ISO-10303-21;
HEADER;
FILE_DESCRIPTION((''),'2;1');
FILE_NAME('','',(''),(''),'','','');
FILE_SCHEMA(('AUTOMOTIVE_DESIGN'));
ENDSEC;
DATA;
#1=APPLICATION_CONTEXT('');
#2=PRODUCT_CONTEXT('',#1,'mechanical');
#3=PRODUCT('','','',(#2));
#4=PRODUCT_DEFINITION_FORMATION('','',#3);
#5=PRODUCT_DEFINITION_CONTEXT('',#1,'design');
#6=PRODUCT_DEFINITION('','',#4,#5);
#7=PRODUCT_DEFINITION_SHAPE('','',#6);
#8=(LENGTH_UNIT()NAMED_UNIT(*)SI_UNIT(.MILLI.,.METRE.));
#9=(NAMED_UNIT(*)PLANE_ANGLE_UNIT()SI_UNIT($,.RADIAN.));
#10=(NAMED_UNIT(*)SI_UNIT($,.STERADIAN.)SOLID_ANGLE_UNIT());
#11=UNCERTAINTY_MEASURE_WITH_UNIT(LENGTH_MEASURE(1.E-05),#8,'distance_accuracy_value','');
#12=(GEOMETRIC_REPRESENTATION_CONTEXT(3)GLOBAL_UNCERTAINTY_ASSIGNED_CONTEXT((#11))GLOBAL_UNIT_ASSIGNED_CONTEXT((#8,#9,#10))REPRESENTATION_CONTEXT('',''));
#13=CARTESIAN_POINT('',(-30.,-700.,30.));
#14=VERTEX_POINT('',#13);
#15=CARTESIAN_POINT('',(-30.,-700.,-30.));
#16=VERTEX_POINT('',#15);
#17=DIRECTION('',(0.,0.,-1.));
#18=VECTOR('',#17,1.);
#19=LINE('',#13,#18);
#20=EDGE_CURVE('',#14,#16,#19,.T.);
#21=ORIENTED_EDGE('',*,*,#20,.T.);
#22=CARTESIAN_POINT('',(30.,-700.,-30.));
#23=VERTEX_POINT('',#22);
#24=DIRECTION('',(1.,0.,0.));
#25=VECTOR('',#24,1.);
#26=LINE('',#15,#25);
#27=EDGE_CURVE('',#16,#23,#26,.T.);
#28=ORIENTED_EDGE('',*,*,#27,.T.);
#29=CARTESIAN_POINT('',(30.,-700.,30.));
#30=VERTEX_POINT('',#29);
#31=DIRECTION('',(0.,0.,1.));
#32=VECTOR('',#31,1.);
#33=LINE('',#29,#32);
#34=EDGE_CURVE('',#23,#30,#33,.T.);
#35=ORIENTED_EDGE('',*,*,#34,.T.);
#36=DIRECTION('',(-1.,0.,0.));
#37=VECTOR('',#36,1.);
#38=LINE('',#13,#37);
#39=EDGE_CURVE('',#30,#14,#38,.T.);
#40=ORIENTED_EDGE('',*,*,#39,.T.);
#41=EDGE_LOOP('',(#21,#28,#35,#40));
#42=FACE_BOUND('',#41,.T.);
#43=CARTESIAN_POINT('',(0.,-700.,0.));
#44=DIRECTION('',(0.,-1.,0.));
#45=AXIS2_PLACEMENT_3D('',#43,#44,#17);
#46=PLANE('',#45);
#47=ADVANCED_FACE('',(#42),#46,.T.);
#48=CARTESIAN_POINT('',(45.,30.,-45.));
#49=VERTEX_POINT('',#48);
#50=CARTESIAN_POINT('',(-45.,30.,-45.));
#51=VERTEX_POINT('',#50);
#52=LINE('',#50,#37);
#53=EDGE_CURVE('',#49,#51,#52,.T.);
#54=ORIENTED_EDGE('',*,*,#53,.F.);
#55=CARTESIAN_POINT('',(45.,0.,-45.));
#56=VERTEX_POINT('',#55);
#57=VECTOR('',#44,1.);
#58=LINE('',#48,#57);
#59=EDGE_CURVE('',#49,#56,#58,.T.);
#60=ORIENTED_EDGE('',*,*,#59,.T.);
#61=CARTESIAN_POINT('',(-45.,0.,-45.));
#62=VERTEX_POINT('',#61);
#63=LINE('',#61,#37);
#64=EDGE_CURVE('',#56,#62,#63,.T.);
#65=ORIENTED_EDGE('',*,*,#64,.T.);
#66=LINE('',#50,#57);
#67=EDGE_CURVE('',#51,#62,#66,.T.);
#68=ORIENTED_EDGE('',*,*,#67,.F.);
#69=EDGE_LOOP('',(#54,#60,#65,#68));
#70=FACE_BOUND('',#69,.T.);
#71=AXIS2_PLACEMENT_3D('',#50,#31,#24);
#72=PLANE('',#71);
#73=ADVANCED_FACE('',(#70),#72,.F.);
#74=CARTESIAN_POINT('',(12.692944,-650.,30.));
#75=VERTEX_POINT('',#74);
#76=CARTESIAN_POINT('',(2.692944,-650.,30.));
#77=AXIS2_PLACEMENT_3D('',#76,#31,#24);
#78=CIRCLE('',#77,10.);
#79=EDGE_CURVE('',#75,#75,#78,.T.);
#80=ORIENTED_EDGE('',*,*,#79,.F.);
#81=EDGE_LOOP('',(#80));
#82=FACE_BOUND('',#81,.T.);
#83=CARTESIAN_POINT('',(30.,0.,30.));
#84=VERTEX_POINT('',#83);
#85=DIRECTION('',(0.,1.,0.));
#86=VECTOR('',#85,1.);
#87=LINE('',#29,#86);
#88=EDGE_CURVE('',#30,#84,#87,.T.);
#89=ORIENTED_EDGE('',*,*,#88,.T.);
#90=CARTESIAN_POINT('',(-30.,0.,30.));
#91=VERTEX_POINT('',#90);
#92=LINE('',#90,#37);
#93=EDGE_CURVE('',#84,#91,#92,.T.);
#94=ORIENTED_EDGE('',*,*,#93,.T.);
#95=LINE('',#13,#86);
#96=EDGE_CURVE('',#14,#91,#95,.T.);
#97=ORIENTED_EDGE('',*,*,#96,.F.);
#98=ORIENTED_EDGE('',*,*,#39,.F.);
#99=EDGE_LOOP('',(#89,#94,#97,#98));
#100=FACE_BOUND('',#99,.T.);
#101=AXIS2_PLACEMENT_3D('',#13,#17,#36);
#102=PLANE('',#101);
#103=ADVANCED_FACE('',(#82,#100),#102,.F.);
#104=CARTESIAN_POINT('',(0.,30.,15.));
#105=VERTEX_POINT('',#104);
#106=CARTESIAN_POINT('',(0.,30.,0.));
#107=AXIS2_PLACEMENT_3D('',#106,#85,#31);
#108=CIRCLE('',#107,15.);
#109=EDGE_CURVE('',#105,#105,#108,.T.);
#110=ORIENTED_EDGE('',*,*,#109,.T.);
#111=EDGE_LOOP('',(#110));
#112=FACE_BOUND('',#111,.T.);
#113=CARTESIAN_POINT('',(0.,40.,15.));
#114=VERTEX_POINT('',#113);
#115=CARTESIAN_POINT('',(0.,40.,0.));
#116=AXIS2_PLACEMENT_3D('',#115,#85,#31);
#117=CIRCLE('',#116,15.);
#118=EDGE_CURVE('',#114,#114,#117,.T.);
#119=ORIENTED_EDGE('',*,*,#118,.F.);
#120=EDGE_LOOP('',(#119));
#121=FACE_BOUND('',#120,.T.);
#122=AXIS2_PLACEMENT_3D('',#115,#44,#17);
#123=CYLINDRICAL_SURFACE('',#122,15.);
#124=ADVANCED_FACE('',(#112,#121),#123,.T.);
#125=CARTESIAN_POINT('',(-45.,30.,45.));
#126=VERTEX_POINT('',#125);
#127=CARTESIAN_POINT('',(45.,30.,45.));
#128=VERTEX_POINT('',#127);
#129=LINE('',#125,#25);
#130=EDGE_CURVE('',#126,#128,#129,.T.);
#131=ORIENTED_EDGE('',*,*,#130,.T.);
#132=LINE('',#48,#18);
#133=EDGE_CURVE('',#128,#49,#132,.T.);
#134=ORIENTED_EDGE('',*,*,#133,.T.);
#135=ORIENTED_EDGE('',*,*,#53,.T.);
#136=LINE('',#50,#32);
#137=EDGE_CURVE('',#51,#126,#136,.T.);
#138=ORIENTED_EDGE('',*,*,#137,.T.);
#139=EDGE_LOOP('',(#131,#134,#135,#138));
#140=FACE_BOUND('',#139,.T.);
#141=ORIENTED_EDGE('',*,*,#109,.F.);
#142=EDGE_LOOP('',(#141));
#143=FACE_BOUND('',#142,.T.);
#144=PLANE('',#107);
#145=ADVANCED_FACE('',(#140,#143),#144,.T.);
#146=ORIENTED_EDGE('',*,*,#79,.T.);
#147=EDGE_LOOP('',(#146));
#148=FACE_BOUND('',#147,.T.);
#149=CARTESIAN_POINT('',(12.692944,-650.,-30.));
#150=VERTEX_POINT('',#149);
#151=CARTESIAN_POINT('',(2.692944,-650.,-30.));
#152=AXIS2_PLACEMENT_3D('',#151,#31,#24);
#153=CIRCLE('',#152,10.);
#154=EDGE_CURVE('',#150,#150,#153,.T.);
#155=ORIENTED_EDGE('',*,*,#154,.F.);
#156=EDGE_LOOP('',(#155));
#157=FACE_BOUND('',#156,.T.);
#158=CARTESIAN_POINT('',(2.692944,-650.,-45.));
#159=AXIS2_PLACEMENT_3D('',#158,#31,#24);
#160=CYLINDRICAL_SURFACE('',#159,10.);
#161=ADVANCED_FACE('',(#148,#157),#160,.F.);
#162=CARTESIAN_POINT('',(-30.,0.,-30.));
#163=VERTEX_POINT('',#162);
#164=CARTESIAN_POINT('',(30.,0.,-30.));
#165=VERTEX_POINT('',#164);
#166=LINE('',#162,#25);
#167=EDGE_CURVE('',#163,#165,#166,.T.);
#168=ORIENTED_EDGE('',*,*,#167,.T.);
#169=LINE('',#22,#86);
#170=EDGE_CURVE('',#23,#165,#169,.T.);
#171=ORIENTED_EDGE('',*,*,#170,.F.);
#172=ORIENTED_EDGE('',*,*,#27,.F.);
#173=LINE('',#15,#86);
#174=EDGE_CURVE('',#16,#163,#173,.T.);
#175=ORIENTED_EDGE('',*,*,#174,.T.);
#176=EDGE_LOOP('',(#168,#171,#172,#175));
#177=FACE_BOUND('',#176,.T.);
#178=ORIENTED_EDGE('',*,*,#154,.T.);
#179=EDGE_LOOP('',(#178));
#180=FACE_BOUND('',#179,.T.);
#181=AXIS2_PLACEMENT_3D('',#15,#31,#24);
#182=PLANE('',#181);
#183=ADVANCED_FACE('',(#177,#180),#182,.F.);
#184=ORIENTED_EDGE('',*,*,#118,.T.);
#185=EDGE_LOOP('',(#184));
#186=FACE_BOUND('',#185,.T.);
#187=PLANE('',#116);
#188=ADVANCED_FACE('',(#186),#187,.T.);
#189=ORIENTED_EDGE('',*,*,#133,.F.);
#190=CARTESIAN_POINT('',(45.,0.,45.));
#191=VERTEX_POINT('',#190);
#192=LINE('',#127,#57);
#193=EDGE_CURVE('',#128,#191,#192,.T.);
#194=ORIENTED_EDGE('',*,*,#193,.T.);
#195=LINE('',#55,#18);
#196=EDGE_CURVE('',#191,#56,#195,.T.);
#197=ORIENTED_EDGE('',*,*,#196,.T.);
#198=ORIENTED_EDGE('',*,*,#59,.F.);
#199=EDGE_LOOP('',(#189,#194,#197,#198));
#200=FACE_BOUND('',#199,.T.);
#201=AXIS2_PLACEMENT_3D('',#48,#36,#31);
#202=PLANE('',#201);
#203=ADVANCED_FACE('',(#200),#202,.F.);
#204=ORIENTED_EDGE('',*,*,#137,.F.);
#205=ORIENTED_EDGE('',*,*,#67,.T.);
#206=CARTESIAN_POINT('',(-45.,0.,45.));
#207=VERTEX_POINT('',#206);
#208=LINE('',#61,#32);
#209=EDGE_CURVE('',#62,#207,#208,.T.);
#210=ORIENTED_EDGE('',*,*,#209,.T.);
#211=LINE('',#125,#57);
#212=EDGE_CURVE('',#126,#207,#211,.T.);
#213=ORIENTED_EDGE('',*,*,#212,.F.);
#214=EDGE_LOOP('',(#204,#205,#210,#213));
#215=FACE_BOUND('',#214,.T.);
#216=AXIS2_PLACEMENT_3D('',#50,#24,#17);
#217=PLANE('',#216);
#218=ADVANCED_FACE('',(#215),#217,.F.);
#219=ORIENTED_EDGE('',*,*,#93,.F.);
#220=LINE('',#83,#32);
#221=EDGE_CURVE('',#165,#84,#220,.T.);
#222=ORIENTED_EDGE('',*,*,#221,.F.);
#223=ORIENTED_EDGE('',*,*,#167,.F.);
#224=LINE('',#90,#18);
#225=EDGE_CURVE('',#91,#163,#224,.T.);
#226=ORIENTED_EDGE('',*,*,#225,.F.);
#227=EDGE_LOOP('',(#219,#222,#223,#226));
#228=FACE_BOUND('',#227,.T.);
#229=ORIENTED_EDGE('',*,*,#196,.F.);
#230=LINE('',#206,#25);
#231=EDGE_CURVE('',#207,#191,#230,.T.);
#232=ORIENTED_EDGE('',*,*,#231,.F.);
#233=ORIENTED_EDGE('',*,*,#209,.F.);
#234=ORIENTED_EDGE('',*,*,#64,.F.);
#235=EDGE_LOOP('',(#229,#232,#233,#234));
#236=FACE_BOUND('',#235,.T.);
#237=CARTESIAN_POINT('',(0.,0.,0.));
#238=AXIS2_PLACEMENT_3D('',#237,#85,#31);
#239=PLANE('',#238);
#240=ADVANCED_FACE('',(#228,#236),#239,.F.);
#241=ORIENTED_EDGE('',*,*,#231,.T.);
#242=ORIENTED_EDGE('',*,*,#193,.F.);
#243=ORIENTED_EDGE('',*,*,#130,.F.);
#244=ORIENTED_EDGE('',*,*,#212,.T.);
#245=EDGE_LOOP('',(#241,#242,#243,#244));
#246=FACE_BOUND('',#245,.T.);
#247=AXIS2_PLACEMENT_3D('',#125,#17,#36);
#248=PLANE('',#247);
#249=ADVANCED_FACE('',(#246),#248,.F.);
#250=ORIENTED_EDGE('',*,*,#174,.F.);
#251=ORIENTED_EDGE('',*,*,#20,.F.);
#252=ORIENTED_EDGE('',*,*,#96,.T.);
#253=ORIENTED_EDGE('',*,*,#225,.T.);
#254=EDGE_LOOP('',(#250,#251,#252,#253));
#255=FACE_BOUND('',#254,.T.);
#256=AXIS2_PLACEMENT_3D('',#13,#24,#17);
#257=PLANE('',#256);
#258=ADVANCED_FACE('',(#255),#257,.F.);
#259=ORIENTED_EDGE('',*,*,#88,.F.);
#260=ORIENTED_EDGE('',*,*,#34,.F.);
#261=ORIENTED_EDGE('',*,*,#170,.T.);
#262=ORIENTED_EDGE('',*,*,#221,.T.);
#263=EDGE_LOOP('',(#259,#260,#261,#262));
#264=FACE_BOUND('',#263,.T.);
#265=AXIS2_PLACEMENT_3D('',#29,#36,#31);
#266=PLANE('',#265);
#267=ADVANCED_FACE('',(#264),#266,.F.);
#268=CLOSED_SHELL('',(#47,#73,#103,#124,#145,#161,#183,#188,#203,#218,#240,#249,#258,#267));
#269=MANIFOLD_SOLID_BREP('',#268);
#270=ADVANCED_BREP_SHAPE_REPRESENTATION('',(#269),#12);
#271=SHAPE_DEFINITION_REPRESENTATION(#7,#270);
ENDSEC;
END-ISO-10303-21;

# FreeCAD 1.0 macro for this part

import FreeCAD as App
import Part
import Sketcher

V = App.Vector
Q = App.Units.Quantity

doc = App.newDocument("Part")
body = doc.addObject("PartDesign::Body", "Body")

sketch1 = body.newObject("Sketcher::SketchObject", "Sketch")
sketch1.AttachmentSupport = (doc.getObject("XZ_Plane"), [""])
sketch1.MapMode = "FlatFace"
sketch1.addGeometry([
    Part.LineSegment(V(-45, -45, 0), V(-45, 45, 0)),
    Part.LineSegment(V(-45, 45, 0), V(45, 45, 0)),
    Part.LineSegment(V(45, 45, 0), V(45, -45, 0)),
    Part.LineSegment(V(45, -45, 0), V(-45, -45, 0)),
], False)
sketch1.addConstraint([
    Sketcher.Constraint("Coincident", 0, 2, 1, 1),
    Sketcher.Constraint("Coincident", 1, 2, 2, 1),
    Sketcher.Constraint("Coincident", 2, 2, 3, 1),
    Sketcher.Constraint("Coincident", 3, 2, 0, 1),
    Sketcher.Constraint("Vertical", 0),
    Sketcher.Constraint("Horizontal", 1),
    Sketcher.Constraint("Vertical", 2),
    Sketcher.Constraint("Horizontal", 3),
    Sketcher.Constraint("Symmetric", 0, 2, 2, 2, -1, 1),
    Sketcher.Constraint("Equal", 3, 0),
    Sketcher.Constraint("DistanceX", 1, 1, 1, 2, Q("90 mm")),
])
pad1 = body.newObject("PartDesign::Pad", "Pad")
pad1.Profile = sketch1
pad1.Length = 30
pad1.Reversed = True

sketch2 = body.newObject("Sketcher::SketchObject", "Sketch001")
sketch2.AttachmentSupport = (doc.getObject("XZ_Plane"), [""])
sketch2.MapMode = "FlatFace"
sketch2.addGeometry([
    Part.LineSegment(V(-30, 30, 0), V(-30, -30, 0)),
    Part.LineSegment(V(-30, -30, 0), V(30, -30, 0)),
    Part.LineSegment(V(30, -30, 0), V(30, 30, 0)),
    Part.LineSegment(V(30, 30, 0), V(-30, 30, 0)),
], False)
sketch2.addConstraint([
    Sketcher.Constraint("Coincident", 0, 2, 1, 1),
    Sketcher.Constraint("Coincident", 1, 2, 2, 1),
    Sketcher.Constraint("Coincident", 2, 2, 3, 1),
    Sketcher.Constraint("Coincident", 3, 2, 0, 1),
    Sketcher.Constraint("Vertical", 0),
    Sketcher.Constraint("Horizontal", 1),
    Sketcher.Constraint("Vertical", 2),
    Sketcher.Constraint("Horizontal", 3),
    Sketcher.Constraint("Symmetric", 0, 2, 2, 2, -1, 1),
    Sketcher.Constraint("Equal", 3, 0),
    Sketcher.Constraint("DistanceX", 1, 1, 1, 2, Q("60 mm")),
])
pad2 = body.newObject("PartDesign::Pad", "Pad001")
pad2.Profile = sketch2
pad2.Length = 700

sketch3 = body.newObject("Sketcher::SketchObject", "Sketch002")
sketch3.AttachmentSupport = (doc.getObject("XY_Plane"), [""])
sketch3.MapMode = "FlatFace"
sketch3.AttachmentOffset = App.Placement(V(0, 0, 30), App.Rotation())
sketch3.addGeometry(Part.Circle(V(2.692944, -650, 0), V(0, 0, 1), 10), False)
sketch3.addConstraint([
    Sketcher.Constraint("Diameter", 0, Q("20 mm")),
    Sketcher.Constraint("DistanceY", 0, 3, -1, 1, Q("650 mm")),
    Sketcher.Constraint("DistanceX", -1, 1, 0, 3, Q("2.692944 mm")),
])
pocket1 = body.newObject("PartDesign::Pocket", "Pocket")
pocket1.Profile = sketch3
pocket1.Type = "ThroughAll"

sketch4 = body.newObject("Sketcher::SketchObject", "Sketch003")
sketch4.AttachmentSupport = (doc.getObject("XZ_Plane"), [""])
sketch4.MapMode = "FlatFace"
sketch4.AttachmentOffset = App.Placement(V(0, 0, -30), App.Rotation())
sketch4.addGeometry(Part.Circle(V(0, 0, 0), V(0, 0, 1), 15), False)
sketch4.addConstraint([
    Sketcher.Constraint("Coincident", 0, 3, -1, 1),
    Sketcher.Constraint("Diameter", 0, Q("30 mm")),
])
pad3 = body.newObject("PartDesign::Pad", "Pad002")
pad3.Profile = sketch4
pad3.Length = 10
pad3.Reversed = True

doc.recompute()
